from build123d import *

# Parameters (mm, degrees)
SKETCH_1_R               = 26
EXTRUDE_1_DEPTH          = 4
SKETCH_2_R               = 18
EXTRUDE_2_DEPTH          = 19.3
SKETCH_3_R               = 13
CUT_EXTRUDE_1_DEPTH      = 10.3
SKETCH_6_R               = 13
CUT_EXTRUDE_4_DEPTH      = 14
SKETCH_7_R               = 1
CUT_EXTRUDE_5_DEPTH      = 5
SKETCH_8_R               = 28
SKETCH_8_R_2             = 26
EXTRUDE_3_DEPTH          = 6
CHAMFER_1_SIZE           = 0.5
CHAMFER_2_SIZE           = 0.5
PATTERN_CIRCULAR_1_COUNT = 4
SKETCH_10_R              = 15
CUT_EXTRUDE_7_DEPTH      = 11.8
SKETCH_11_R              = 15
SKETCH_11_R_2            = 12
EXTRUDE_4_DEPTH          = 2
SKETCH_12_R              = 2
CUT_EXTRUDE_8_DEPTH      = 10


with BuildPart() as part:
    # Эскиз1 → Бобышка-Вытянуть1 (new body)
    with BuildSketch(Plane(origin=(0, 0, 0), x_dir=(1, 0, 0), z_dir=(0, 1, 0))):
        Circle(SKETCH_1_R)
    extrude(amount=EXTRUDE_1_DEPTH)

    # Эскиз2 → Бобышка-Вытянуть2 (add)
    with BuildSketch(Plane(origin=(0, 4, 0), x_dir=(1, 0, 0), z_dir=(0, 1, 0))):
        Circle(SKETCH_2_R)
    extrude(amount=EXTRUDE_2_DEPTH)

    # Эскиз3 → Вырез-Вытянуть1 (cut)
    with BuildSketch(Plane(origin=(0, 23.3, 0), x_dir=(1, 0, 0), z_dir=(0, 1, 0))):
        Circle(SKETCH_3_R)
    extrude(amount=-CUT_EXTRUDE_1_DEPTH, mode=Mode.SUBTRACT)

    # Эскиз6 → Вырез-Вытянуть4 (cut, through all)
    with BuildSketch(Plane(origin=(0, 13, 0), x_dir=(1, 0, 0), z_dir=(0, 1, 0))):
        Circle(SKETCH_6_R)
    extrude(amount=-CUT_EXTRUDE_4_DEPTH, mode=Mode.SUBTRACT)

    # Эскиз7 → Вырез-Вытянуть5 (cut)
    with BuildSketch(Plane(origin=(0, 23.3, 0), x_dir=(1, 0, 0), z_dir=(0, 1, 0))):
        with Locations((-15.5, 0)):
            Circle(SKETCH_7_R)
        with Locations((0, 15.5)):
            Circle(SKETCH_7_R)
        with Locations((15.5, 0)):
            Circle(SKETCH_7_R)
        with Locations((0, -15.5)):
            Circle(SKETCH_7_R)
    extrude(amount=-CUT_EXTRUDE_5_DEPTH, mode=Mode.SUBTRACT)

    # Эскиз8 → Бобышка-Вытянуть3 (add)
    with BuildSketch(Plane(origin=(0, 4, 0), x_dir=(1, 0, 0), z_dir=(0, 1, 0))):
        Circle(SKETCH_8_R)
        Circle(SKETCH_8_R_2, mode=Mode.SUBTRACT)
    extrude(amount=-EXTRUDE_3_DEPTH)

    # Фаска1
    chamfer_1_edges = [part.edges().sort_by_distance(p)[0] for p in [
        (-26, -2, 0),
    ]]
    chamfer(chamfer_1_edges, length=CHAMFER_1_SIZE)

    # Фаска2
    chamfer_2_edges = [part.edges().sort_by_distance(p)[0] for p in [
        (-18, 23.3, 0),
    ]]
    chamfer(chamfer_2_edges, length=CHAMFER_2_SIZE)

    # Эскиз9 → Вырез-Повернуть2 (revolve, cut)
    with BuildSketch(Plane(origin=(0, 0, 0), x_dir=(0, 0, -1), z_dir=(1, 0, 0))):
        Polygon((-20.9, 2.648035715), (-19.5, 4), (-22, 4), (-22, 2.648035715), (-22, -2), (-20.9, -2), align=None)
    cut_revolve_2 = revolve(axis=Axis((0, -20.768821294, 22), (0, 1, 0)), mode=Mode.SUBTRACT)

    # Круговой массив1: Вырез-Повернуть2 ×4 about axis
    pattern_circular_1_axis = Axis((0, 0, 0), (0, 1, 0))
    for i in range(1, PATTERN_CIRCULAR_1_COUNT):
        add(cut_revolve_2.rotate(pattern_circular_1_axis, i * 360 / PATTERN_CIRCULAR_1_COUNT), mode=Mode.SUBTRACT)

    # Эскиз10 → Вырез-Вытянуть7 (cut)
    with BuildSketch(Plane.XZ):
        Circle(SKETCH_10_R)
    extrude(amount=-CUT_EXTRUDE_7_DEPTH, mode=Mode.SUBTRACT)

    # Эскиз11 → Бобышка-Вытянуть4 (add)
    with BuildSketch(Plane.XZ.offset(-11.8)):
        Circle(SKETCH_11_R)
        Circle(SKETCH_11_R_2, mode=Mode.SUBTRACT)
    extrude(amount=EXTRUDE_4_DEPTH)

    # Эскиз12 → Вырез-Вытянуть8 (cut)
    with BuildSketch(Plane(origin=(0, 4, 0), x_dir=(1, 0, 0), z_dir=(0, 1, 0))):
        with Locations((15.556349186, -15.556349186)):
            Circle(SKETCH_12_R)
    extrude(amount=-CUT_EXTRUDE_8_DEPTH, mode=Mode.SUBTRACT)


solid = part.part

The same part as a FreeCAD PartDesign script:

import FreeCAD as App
import Part
import Sketcher
Q = App.Units.Quantity


def edges_at(feature, points):
    """Names of the edges that pass closest to the given points."""
    edges = feature.Shape.Edges
    near = lambda p: min(range(len(edges)), key=lambda i: edges[i].distToShape(Part.Vertex(*p))[0])
    return sorted({f"Edge{near(p) + 1}" for p in points})


def add_polygon(sketch, points):
    """Adds a closed chain of lines whose ends are joined by coincident constraints."""
    first, n = sketch.GeometryCount, len(points)
    for a, b in zip(points, points[1:] + points[:1]):
        sketch.addGeometry(Part.LineSegment(App.Vector(*a, 0), App.Vector(*b, 0)), False)
    for i in range(n):
        sketch.addConstraint(Sketcher.Constraint("Coincident", first + i, 2, first + (i + 1) % n, 1))

doc = App.newDocument("Part")
body = doc.addObject("PartDesign::Body", "Body")

# Sketch on XZ plane
sketch1 = body.newObject("Sketcher::SketchObject", "Sketch")
sketch1.AttachmentSupport = (doc.getObject("XZ_Plane"), [""])
sketch1.MapMode = "FlatFace"
sketch1.addGeometry(Part.Circle(App.Vector(0, 0, 0), App.Vector(0, 0, 1), 26), False)
sketch1.addConstraint([
    Sketcher.Constraint("Coincident", 0, 3, -1, 1),
    Sketcher.Constraint("Diameter", 0, Q("52 mm")),
])
pad1 = body.newObject("PartDesign::Pad", "Pad")
pad1.Profile = sketch1
pad1.Length = 4
pad1.Reversed = True

# Sketch on XZ plane
sketch2 = body.newObject("Sketcher::SketchObject", "Sketch001")
sketch2.AttachmentSupport = (doc.getObject("XZ_Plane"), [""])
sketch2.MapMode = "FlatFace"
sketch2.AttachmentOffset = App.Placement(App.Vector(0, 0, -4), App.Rotation())
sketch2.addGeometry(Part.Circle(App.Vector(0, 0, 0), App.Vector(0, 0, 1), 18), False)
sketch2.addConstraint([
    Sketcher.Constraint("Coincident", 0, 3, -1, 1),
    Sketcher.Constraint("Diameter", 0, Q("36 mm")),
])
pad2 = body.newObject("PartDesign::Pad", "Pad001")
pad2.Profile = sketch2
pad2.Length = 19.3
pad2.Reversed = True

# Sketch on XZ plane
sketch3 = body.newObject("Sketcher::SketchObject", "Sketch002")
sketch3.AttachmentSupport = (doc.getObject("XZ_Plane"), [""])
sketch3.MapMode = "FlatFace"
sketch3.AttachmentOffset = App.Placement(App.Vector(0, 0, -23.3), App.Rotation())
sketch3.addGeometry(Part.Circle(App.Vector(0, 0, 0), App.Vector(0, 0, 1), 13), False)
sketch3.addConstraint([
    Sketcher.Constraint("Coincident", 0, 3, -1, 1),
    Sketcher.Constraint("Diameter", 0, Q("26 mm")),
])
pocket1 = body.newObject("PartDesign::Pocket", "Pocket")
pocket1.Profile = sketch3
pocket1.Length = 10.3
pocket1.Reversed = True

# Sketch on XZ plane
sketch4 = body.newObject("Sketcher::SketchObject", "Sketch003")
sketch4.AttachmentSupport = (doc.getObject("XZ_Plane"), [""])
sketch4.MapMode = "FlatFace"
sketch4.AttachmentOffset = App.Placement(App.Vector(0, 0, -13), App.Rotation())
sketch4.addGeometry(Part.Circle(App.Vector(0, 0, 0), App.Vector(0, 0, 1), 13), False)
sketch4.addConstraint([
    Sketcher.Constraint("Coincident", 0, 3, -1, 1),
    Sketcher.Constraint("Diameter", 0, Q("26 mm")),
])
pocket2 = body.newObject("PartDesign::Pocket", "Pocket001")
pocket2.Profile = sketch4
pocket2.Type = "ThroughAll"
pocket2.Reversed = True

# Sketch on XZ plane
sketch5 = body.newObject("Sketcher::SketchObject", "Sketch004")
sketch5.AttachmentSupport = (doc.getObject("XZ_Plane"), [""])
sketch5.MapMode = "FlatFace"
sketch5.AttachmentOffset = App.Placement(App.Vector(0, 0, -23.3), App.Rotation())
sketch5.addGeometry([
    Part.Circle(App.Vector(-15.5, 0, 0), App.Vector(0, 0, 1), 1),
    Part.Circle(App.Vector(0, -15.5, 0), App.Vector(0, 0, 1), 1),
    Part.Circle(App.Vector(15.5, 0, 0), App.Vector(0, 0, 1), 1),
    Part.Circle(App.Vector(0, 15.5, 0), App.Vector(0, 0, 1), 1),
], False)
sketch5.addConstraint([
    Sketcher.Constraint("Equal", 0, 1),
    Sketcher.Constraint("Equal", 1, 2),
    Sketcher.Constraint("Equal", 2, 3),
    Sketcher.Constraint("Symmetric", 0, 3, 2, 3, -1, 1),
    Sketcher.Constraint("Symmetric", 1, 3, 3, 3, -1, 1),
    Sketcher.Constraint("PointOnObject", 0, 3, -1),
    Sketcher.Constraint("PointOnObject", 1, 3, -2),
    Sketcher.Constraint("Diameter", 0, Q("2 mm")),
    Sketcher.Constraint("DistanceX", 0, 3, 2, 3, Q("31 mm")),
    Sketcher.Constraint("DistanceY", 1, 3, 3, 3, Q("31 mm")),
])
pocket3 = body.newObject("PartDesign::Pocket", "Pocket002")
pocket3.Profile = sketch5
pocket3.Length = 5
pocket3.Reversed = True

# Sketch on XZ plane
sketch6 = body.newObject("Sketcher::SketchObject", "Sketch005")
sketch6.AttachmentSupport = (doc.getObject("XZ_Plane"), [""])
sketch6.MapMode = "FlatFace"
sketch6.AttachmentOffset = App.Placement(App.Vector(0, 0, -4), App.Rotation())
sketch6.addGeometry([
    Part.Circle(App.Vector(0, 0, 0), App.Vector(0, 0, 1), 28),
    Part.Circle(App.Vector(0, 0, 0), App.Vector(0, 0, 1), 26),
], False)
sketch6.addConstraint([
    Sketcher.Constraint("Coincident", 0, 3, -1, 1),
    Sketcher.Constraint("Coincident", 1, 3, -1, 1),
    Sketcher.Constraint("Diameter", 0, Q("56 mm")),
    Sketcher.Constraint("Diameter", 1, Q("52 mm")),
])
pad3 = body.newObject("PartDesign::Pad", "Pad002")
pad3.Profile = sketch6
pad3.Length = 6
doc.recompute()

chamfer = body.newObject("PartDesign::Chamfer", "Chamfer")
chamfer.Base = (pad3, edges_at(pad3, [(-26, -2, 0)]))
chamfer.Size = 0.5
doc.recompute()

chamfer2 = body.newObject("PartDesign::Chamfer", "Chamfer001")
chamfer2.Base = (chamfer, edges_at(chamfer, [(-18, 23.3, 0)]))
chamfer2.Size = 0.5

# Sketch on YZ plane
sketch7 = body.newObject("Sketcher::SketchObject", "Sketch006")
sketch7.AttachmentSupport = (doc.getObject("YZ_Plane"), [""])
sketch7.MapMode = "FlatFace"
add_polygon(sketch7, [(2.6, 20.9), (4, 19.5), (4, 22), (-2, 22), (-2, 20.9)])  # lines 0-4
sketch7.addGeometry(Part.LineSegment(App.Vector(-2, 22, 0), App.Vector(4, 22, 0)), True)  # axis
sketch7.addConstraint([
    Sketcher.Constraint("Vertical", 1),
    Sketcher.Constraint("Horizontal", 2),
    Sketcher.Constraint("Vertical", 3),
    Sketcher.Constraint("Horizontal", 4),
    Sketcher.Constraint("Horizontal", 5),
    Sketcher.Constraint("Coincident", 5, 1, 2, 2),
    Sketcher.Constraint("Vertical", 0, 2, 5, 2),
    Sketcher.Constraint("DistanceX", 2, 2, 2, 1, Q("6 mm")),
    Sketcher.Constraint("Angle", 0, Q("-46 deg")),
    Sketcher.Constraint("DistanceY", 1, 1, 1, 2, Q("2.5 mm")),
    Sketcher.Constraint("DistanceY", 3, 2, 3, 1, Q("1.1 mm")),
    Sketcher.Constraint("DistanceX", -1, 1, 0, 2, Q("4 mm")),
    Sketcher.Constraint("DistanceY", -1, 1, 1, 2, Q("22 mm")),
])
groove = body.newObject("PartDesign::Groove", "Groove")
groove.Profile = sketch7
groove.ReferenceAxis = (sketch7, ["Axis0"])
groove.Angle = 360
doc.recompute()

polarpattern = body.newObject("PartDesign::PolarPattern", "PolarPattern")
polarpattern.Originals = [groove]
polarpattern.Axis = (doc.getObject("Y_Axis"), [""])
polarpattern.Angle = 360
polarpattern.Occurrences = 4
body.Tip = polarpattern

# Sketch on XZ plane
sketch8 = body.newObject("Sketcher::SketchObject", "Sketch007")
sketch8.AttachmentSupport = (doc.getObject("XZ_Plane"), [""])
sketch8.MapMode = "FlatFace"
sketch8.addGeometry(Part.Circle(App.Vector(0, 0, 0), App.Vector(0, 0, 1), 15), False)
sketch8.addConstraint([
    Sketcher.Constraint("Coincident", 0, 3, -1, 1),
    Sketcher.Constraint("Diameter", 0, Q("30 mm")),
])
pocket4 = body.newObject("PartDesign::Pocket", "Pocket003")
pocket4.Profile = sketch8
pocket4.Length = 11.8

# Sketch on XZ plane
sketch9 = body.newObject("Sketcher::SketchObject", "Sketch008")
sketch9.AttachmentSupport = (doc.getObject("XZ_Plane"), [""])
sketch9.MapMode = "FlatFace"
sketch9.AttachmentOffset = App.Placement(App.Vector(0, 0, -11.8), App.Rotation())
sketch9.addGeometry([
    Part.Circle(App.Vector(0, 0, 0), App.Vector(0, 0, 1), 15),
    Part.Circle(App.Vector(0, 0, 0), App.Vector(0, 0, 1), 12),
], False)
sketch9.addConstraint([
    Sketcher.Constraint("Coincident", 0, 3, -1, 1),
    Sketcher.Constraint("Coincident", 1, 3, -1, 1),
    Sketcher.Constraint("Diameter", 0, Q("30 mm")),
    Sketcher.Constraint("Diameter", 1, Q("24 mm")),
])
pad4 = body.newObject("PartDesign::Pad", "Pad003")
pad4.Profile = sketch9
pad4.Length = 2

# Sketch on XZ plane
sketch10 = body.newObject("Sketcher::SketchObject", "Sketch009")
sketch10.AttachmentSupport = (doc.getObject("XZ_Plane"), [""])
sketch10.MapMode = "FlatFace"
sketch10.AttachmentOffset = App.Placement(App.Vector(0, 0, -4), App.Rotation())
sketch10.addGeometry(Part.Circle(App.Vector(15.6, 15.6, 0), App.Vector(0, 0, 1), 2), False)
sketch10.addConstraint([
    Sketcher.Constraint("Diameter", 0, Q("4 mm")),
    Sketcher.Constraint("DistanceX", -1, 1, 0, 3, Q("15.556349 mm")),
    Sketcher.Constraint("DistanceY", -1, 1, 0, 3, Q("15.556349 mm")),
])
pocket5 = body.newObject("PartDesign::Pocket", "Pocket004")
pocket5.Profile = sketch10
pocket5.Length = 10
pocket5.Reversed = True

doc.recompute()
